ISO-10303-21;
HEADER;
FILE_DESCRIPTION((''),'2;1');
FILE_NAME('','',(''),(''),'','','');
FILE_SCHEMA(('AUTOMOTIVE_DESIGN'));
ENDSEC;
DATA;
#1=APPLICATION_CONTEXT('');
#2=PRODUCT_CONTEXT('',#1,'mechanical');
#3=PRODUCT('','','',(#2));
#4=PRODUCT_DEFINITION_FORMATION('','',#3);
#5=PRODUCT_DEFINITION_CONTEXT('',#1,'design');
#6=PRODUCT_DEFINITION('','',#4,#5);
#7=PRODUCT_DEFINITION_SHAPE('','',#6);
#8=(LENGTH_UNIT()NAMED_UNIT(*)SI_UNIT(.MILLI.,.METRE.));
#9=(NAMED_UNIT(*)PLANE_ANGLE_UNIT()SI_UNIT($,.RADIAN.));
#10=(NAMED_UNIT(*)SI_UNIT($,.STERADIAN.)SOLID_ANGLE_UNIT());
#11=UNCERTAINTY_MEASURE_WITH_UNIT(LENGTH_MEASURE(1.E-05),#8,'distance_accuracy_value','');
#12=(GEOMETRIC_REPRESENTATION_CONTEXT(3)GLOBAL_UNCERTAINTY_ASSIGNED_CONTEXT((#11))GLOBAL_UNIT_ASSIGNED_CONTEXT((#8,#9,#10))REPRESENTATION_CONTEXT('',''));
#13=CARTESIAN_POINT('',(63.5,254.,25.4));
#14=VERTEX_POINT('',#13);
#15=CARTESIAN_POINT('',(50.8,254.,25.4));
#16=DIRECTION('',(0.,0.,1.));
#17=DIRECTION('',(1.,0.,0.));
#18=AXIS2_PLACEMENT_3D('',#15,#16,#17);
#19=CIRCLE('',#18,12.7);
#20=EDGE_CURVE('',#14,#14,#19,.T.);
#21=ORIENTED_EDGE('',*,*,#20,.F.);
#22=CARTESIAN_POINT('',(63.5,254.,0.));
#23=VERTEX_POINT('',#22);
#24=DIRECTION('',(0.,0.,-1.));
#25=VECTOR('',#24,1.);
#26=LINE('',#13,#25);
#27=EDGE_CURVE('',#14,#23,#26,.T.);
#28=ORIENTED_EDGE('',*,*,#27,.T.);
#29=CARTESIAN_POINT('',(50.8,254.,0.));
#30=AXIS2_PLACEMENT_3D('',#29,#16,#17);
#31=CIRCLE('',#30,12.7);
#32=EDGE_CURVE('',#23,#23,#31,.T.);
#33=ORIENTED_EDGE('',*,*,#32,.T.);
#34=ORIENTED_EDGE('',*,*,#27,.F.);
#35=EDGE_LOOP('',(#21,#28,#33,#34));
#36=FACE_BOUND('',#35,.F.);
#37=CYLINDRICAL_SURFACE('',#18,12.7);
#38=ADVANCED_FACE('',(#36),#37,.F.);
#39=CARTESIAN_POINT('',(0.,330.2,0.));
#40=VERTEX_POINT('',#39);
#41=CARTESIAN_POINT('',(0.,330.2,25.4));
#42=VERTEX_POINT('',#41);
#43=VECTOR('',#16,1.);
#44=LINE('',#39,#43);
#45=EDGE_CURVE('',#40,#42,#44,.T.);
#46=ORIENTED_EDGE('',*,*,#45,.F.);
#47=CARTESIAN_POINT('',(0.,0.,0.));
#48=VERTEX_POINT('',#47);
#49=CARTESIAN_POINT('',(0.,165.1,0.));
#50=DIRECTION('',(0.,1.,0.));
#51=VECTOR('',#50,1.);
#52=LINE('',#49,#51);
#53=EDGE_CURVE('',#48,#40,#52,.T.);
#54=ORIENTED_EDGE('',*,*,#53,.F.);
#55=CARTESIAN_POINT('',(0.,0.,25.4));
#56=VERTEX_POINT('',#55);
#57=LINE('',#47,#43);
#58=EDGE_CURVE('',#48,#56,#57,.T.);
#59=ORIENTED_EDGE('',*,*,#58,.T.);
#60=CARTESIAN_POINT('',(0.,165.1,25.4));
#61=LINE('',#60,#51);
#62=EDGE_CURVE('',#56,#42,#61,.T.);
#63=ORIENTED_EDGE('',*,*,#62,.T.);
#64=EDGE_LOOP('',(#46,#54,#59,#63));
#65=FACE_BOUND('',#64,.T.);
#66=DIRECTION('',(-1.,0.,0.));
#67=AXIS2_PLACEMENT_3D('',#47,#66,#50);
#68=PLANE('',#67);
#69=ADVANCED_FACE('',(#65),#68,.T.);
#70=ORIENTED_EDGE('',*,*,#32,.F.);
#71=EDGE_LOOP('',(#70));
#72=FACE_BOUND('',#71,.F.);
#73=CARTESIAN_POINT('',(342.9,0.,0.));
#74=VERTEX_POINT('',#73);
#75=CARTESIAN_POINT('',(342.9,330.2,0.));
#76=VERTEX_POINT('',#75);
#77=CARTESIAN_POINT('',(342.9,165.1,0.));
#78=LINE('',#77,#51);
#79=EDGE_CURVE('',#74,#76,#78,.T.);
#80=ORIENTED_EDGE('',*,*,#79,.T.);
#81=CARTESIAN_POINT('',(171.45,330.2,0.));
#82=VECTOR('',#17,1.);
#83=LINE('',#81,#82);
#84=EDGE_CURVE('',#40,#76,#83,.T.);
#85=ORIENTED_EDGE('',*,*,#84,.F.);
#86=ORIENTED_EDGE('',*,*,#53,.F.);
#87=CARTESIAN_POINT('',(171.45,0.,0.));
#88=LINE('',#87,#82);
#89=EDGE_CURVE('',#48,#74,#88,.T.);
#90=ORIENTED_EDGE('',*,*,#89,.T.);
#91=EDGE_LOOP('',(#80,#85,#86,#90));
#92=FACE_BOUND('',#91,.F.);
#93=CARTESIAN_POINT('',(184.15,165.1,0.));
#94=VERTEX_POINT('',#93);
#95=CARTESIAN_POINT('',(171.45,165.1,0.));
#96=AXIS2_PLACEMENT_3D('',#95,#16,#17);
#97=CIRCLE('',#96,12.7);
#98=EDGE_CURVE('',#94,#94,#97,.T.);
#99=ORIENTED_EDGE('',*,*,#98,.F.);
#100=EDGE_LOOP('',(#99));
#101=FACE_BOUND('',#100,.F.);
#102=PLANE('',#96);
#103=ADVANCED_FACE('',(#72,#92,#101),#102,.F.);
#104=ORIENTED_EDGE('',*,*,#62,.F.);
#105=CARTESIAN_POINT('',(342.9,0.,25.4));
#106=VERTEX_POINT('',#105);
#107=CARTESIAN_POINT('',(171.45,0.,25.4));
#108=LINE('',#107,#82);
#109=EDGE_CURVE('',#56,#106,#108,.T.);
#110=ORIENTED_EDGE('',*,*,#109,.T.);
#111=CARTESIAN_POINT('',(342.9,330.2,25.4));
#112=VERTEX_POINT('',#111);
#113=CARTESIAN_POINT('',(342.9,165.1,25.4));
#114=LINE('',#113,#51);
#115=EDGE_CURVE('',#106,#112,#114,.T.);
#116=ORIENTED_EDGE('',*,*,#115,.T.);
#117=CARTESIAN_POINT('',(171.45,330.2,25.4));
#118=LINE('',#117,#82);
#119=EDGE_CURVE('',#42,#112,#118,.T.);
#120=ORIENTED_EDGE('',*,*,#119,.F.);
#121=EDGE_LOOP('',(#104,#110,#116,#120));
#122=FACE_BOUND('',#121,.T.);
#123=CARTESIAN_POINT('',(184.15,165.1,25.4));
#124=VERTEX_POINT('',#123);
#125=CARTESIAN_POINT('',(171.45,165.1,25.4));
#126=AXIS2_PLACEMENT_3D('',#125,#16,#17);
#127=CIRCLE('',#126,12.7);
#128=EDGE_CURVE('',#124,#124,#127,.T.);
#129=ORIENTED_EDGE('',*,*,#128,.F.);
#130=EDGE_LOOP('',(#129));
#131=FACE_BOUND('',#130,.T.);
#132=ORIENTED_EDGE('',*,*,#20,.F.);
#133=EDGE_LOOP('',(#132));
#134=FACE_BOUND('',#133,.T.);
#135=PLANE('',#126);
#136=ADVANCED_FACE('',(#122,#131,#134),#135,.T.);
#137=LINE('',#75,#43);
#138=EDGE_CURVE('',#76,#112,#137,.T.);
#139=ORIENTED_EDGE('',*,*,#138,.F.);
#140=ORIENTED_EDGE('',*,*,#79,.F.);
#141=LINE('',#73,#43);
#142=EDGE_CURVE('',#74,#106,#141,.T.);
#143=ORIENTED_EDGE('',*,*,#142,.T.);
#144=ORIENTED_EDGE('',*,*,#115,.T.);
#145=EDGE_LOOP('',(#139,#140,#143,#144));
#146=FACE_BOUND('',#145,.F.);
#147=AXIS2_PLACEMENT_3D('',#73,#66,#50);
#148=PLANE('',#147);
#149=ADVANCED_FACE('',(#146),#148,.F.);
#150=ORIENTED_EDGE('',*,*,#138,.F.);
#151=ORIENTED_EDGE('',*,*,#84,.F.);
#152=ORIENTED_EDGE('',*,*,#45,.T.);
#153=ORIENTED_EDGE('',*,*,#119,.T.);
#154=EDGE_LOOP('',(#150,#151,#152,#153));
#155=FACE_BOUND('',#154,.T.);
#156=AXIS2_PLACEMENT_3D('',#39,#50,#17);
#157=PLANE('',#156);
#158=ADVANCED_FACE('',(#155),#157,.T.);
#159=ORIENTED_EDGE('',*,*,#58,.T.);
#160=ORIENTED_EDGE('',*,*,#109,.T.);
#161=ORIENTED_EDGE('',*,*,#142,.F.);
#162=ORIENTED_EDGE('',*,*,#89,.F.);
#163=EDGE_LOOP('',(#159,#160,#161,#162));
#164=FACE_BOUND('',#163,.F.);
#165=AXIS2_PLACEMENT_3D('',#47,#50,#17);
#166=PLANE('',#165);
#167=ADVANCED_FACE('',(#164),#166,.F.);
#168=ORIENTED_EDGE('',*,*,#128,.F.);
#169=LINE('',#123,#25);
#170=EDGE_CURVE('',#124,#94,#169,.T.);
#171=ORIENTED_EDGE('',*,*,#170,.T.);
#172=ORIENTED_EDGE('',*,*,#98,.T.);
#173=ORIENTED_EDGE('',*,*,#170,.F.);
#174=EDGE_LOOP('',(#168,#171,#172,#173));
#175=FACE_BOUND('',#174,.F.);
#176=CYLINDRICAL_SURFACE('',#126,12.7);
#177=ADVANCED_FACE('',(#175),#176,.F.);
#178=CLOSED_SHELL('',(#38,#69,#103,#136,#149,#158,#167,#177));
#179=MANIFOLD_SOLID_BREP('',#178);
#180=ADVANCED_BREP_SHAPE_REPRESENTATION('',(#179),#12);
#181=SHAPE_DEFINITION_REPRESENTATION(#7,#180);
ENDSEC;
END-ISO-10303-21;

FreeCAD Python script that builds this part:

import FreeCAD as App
import Part
import Sketcher
from FreeCAD import Vector
Q = App.Units.Quantity

doc = App.newDocument("Part")
params = doc.addObject("Spreadsheet::Sheet", "Params")
for row, (alias, value) in enumerate([
    ("sketch1_height", "13 in"),
    ("sketch1_width", "13.5 in"),
    ("pad1_length", "1 in"),
    ("sketch2_diameter", "1 in"),
    ("sketch3_diameter", "1 in"),
], start=1):
    params.set(f"A{row}", alias)
    params.set(f"B{row}", "=" + value)
    params.setAlias(f"B{row}", alias)

body = doc.addObject("PartDesign::Body", "Body")

sketch1 = body.newObject("Sketcher::SketchObject", "Sketch")
sketch1.AttachmentSupport = (doc.getObject("XY_Plane"), [""])
sketch1.MapMode = "FlatFace"
sketch1.addGeometry([
    Part.LineSegment(Vector(0, 330, 0), Vector(0, 0, 0)),
    Part.LineSegment(Vector(0, 0, 0), Vector(343, 0, 0)),
    Part.LineSegment(Vector(343, 0, 0), Vector(343, 330, 0)),
    Part.LineSegment(Vector(343, 330, 0), Vector(0, 330, 0)),
], False)
sketch1.addConstraint([
    Sketcher.Constraint("Coincident", 0, 2, 1, 1),
    Sketcher.Constraint("Coincident", 1, 2, 2, 1),
    Sketcher.Constraint("Coincident", 2, 2, 3, 1),
    Sketcher.Constraint("Coincident", 3, 2, 0, 1),
    Sketcher.Constraint("Vertical", 0),
    Sketcher.Constraint("Horizontal", 1),
    Sketcher.Constraint("Vertical", 2),
    Sketcher.Constraint("Horizontal", 3),
    Sketcher.Constraint("Coincident", 0, 2, -1, 1),
    Sketcher.Constraint("DistanceY", 0, 2, 0, 1, Q("13 in")),
    Sketcher.Constraint("DistanceX", 1, 1, 1, 2, Q("13.5 in")),
])
sketch1.setExpression("Constraints[9]", "Params.sketch1_height")
sketch1.setExpression("Constraints[10]", "Params.sketch1_width")
pad1 = body.newObject("PartDesign::Pad", "Pad")
pad1.Profile = sketch1
pad1.setExpression("Length", "Params.pad1_length")

sketch2 = body.newObject("Sketcher::SketchObject", "Sketch001")
sketch2.AttachmentSupport = (doc.getObject("XY_Plane"), [""])
sketch2.MapMode = "FlatFace"
sketch2.AttachmentOffset = App.Placement(Vector(0, 0, 1 * 25.4), App.Rotation())
sketch2.addGeometry(Part.Circle(Vector(51, 254, 0), Vector(0, 0, 1), 13), False)
sketch2.addConstraint([
    Sketcher.Constraint("Diameter", 0, Q("1 in")),
    Sketcher.Constraint("DistanceX", -1, 1, 0, 3, Q("2 in")),
    Sketcher.Constraint("DistanceY", -1, 1, 0, 3, Q("10 in")),
])
sketch2.setExpression("Constraints[0]", "Params.sketch2_diameter")
pocket1 = body.newObject("PartDesign::Pocket", "Pocket")
pocket1.Profile = sketch2
pocket1.Type = "ThroughAll"

sketch3 = body.newObject("Sketcher::SketchObject", "Sketch002")
sketch3.AttachmentSupport = (doc.getObject("XY_Plane"), [""])
sketch3.MapMode = "FlatFace"
sketch3.AttachmentOffset = App.Placement(Vector(0, 0, 1 * 25.4), App.Rotation())
sketch3.addGeometry(Part.Circle(Vector(171, 165, 0), Vector(0, 0, 1), 13), False)
sketch3.addConstraint([
    Sketcher.Constraint("Diameter", 0, Q("1 in")),
    Sketcher.Constraint("DistanceY", -1, 1, 0, 3, Q("6.5 in")),
    Sketcher.Constraint("DistanceX", -1, 1, 0, 3, Q("6.75 in")),
])
sketch3.setExpression("Constraints[0]", "Params.sketch3_diameter")
pocket2 = body.newObject("PartDesign::Pocket", "Pocket001")
pocket2.Profile = sketch3
pocket2.Type = "ThroughAll"

doc.recompute()
